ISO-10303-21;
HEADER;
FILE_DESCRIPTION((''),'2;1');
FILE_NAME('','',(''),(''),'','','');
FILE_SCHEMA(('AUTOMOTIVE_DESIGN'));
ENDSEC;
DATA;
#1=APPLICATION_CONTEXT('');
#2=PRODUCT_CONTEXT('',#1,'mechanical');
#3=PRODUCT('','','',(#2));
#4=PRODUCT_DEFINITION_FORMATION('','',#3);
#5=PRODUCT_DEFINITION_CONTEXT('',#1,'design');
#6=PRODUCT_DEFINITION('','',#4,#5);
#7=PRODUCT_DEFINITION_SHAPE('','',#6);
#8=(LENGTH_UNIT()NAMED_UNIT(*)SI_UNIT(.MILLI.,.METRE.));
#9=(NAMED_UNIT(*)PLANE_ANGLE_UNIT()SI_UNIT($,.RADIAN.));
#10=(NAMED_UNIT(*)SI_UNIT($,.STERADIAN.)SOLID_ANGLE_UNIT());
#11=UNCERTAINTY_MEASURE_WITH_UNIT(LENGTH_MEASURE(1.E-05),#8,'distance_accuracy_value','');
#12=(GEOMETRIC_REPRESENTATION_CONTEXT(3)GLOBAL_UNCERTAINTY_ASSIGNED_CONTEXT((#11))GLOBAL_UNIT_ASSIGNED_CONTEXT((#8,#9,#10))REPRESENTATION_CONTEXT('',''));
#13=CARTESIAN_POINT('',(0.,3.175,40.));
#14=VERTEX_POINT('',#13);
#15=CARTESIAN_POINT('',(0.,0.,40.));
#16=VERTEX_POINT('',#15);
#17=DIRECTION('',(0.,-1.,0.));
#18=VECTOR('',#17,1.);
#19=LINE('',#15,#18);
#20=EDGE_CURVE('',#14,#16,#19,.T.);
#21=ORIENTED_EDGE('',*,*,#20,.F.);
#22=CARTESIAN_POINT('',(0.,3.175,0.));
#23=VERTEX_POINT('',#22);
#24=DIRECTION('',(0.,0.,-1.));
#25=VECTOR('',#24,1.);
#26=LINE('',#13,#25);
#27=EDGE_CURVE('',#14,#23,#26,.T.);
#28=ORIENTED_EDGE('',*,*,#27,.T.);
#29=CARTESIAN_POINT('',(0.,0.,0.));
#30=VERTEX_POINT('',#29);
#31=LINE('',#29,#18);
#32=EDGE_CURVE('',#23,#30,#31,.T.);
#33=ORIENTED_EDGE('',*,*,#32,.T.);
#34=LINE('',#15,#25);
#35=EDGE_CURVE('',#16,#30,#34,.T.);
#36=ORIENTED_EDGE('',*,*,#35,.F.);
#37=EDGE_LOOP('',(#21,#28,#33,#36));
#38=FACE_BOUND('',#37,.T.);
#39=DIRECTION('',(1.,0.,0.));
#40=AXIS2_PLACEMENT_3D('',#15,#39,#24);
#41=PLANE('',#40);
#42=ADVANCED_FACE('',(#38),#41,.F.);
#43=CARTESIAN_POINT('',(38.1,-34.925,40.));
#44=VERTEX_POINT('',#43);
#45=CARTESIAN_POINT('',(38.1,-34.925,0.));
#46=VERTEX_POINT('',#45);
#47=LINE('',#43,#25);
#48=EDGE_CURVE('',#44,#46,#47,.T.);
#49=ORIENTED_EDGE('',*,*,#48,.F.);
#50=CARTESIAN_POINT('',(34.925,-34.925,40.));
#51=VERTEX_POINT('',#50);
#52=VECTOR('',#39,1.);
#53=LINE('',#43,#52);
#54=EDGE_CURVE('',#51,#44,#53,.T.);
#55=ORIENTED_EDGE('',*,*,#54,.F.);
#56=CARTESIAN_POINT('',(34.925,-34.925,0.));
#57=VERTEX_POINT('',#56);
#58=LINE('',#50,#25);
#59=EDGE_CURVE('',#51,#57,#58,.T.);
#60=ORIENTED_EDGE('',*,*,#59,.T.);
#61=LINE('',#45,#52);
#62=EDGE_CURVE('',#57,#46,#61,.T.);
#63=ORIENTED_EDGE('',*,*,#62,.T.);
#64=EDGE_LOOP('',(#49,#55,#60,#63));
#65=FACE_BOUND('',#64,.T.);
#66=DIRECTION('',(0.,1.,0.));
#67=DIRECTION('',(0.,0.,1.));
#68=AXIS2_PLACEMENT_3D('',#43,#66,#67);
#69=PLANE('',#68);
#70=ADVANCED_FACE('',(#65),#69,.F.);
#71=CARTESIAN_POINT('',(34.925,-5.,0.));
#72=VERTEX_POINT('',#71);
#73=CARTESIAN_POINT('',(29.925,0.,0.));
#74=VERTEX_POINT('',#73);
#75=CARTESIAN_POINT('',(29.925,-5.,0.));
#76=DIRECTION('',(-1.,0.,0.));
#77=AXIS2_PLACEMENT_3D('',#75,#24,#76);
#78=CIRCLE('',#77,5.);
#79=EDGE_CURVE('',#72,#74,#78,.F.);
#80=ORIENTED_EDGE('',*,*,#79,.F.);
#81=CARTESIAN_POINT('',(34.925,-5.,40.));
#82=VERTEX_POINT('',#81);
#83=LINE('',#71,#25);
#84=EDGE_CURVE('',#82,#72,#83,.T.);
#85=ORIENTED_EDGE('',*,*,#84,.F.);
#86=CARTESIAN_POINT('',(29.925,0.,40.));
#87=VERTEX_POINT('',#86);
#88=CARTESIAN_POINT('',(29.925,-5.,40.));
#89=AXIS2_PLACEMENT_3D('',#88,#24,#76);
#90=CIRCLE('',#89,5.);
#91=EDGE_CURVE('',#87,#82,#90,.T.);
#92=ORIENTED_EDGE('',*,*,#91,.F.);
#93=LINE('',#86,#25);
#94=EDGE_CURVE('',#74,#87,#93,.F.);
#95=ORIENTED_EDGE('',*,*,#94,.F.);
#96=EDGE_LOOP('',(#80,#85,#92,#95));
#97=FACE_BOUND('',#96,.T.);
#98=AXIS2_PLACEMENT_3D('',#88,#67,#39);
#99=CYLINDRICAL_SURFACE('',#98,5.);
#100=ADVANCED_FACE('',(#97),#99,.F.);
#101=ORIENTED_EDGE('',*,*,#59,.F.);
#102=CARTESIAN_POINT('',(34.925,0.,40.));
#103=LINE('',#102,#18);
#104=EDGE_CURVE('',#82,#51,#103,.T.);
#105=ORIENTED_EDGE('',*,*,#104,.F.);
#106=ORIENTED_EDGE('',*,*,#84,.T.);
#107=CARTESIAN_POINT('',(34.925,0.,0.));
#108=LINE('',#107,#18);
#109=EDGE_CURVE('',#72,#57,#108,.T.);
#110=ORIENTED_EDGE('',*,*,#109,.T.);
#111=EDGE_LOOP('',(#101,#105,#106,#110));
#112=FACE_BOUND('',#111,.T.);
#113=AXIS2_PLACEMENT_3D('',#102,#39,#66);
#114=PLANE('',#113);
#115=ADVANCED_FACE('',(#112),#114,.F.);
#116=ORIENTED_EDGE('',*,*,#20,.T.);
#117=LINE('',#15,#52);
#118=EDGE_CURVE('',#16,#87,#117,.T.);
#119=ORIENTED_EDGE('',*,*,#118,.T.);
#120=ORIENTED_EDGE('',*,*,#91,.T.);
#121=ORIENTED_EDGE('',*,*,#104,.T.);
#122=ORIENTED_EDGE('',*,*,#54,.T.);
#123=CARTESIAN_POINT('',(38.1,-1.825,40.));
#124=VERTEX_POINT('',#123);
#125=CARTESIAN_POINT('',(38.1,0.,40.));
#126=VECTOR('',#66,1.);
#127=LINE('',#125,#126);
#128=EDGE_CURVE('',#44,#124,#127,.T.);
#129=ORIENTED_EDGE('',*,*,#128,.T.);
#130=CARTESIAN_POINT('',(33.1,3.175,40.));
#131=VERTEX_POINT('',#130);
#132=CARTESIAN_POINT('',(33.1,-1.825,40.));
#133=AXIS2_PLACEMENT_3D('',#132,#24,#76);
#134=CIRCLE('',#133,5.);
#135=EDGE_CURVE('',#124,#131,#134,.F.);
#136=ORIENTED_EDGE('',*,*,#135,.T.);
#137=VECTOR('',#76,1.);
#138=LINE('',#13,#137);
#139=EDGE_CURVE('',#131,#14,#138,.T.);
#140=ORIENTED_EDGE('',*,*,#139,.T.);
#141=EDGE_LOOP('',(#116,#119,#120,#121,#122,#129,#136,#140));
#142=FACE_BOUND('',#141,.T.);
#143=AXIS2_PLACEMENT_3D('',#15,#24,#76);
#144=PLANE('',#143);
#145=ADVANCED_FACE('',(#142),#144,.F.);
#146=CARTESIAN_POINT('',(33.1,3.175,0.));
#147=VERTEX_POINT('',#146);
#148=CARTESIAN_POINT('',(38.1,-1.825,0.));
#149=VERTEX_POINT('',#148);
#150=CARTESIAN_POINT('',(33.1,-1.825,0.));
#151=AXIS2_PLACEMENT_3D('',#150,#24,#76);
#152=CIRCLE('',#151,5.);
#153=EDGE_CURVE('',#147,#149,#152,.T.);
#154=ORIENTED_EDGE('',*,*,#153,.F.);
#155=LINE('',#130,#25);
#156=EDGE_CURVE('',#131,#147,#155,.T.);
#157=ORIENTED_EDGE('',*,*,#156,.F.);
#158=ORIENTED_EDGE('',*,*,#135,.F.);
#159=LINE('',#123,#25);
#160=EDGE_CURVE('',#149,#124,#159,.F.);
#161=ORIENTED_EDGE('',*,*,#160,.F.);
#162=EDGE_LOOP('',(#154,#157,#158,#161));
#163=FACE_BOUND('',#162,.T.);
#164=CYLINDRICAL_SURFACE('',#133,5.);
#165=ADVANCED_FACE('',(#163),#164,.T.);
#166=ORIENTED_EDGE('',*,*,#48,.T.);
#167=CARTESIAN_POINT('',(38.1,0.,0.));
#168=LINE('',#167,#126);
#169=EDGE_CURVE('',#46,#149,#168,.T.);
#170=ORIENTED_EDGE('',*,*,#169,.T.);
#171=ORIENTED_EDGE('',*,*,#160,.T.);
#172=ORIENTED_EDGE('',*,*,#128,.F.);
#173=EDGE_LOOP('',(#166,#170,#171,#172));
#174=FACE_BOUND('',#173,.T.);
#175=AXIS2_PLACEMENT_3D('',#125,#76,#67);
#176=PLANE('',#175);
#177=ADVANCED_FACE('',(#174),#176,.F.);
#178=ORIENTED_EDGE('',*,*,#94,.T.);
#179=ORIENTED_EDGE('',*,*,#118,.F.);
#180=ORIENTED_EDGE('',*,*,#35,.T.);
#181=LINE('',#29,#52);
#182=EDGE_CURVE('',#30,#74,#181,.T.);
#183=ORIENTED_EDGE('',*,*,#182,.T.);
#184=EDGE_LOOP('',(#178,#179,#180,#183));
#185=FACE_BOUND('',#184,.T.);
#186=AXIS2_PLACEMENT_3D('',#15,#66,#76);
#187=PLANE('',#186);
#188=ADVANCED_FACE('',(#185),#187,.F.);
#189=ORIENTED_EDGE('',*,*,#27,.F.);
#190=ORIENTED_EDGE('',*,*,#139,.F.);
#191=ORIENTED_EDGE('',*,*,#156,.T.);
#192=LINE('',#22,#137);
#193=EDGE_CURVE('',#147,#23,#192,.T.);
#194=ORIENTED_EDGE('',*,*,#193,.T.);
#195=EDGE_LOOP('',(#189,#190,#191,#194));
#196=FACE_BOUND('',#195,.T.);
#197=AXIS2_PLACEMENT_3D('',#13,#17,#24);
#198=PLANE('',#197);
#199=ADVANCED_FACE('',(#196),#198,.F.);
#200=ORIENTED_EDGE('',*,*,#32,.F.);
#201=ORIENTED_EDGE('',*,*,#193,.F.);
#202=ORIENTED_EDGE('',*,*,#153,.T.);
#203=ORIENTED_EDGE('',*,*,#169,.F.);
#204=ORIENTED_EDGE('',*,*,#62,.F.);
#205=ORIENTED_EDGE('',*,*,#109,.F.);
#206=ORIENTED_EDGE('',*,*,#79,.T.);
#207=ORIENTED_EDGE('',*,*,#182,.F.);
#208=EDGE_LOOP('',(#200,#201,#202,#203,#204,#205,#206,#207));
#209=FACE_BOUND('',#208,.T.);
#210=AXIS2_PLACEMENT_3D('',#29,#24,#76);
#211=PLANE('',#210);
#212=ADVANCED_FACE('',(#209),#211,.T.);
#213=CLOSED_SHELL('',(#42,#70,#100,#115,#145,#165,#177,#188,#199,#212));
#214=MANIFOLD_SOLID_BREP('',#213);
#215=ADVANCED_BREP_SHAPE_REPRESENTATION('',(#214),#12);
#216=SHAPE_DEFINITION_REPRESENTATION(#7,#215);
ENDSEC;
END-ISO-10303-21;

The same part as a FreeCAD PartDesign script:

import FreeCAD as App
import Part
import Sketcher
from FreeCAD import Vector
Q = App.Units.Quantity


def edges_at(feature, points):
    """Names of the edges that pass closest to the given points."""
    edges = feature.Shape.Edges
    near = lambda p: min(range(len(edges)), key=lambda i: edges[i].distToShape(Part.Vertex(*p))[0])
    return sorted({f"Edge{near(p) + 1}" for p in points})

doc = App.newDocument("Part")
body = doc.addObject("PartDesign::Body", "Body")

# Sketch on XY plane
sketch1 = body.newObject("Sketcher::SketchObject", "Sketch")
sketch1.AttachmentSupport = (doc.getObject("XY_Plane"), [""])
sketch1.MapMode = "FlatFace"
sketch1.addGeometry([
    Part.LineSegment(Vector(0, 0, 0), Vector(34.9, 0, 0)),  # 0
    Part.LineSegment(Vector(34.9, 0, 0), Vector(34.9, -34.9, 0)),  # 1
    Part.LineSegment(Vector(34.9, -34.9, 0), Vector(38.1, -34.9, 0)),  # 2
    Part.LineSegment(Vector(38.1, -34.9, 0), Vector(38.1, 3.2, 0)),  # 3
    Part.LineSegment(Vector(38.1, 3.2, 0), Vector(0, 3.2, 0)),  # 4
    Part.LineSegment(Vector(0, 3.2, 0), Vector(0, 0, 0)),  # 5
], False)
sketch1.addConstraint([
    Sketcher.Constraint("Coincident", 0, 2, 1, 1),
    Sketcher.Constraint("Coincident", 1, 2, 2, 1),
    Sketcher.Constraint("Coincident", 2, 2, 3, 1),
    Sketcher.Constraint("Coincident", 3, 2, 4, 1),
    Sketcher.Constraint("Coincident", 4, 2, 5, 1),
    Sketcher.Constraint("Coincident", 5, 2, 0, 1),
    Sketcher.Constraint("Horizontal", 0),
    Sketcher.Constraint("Vertical", 1),
    Sketcher.Constraint("Horizontal", 2),
    Sketcher.Constraint("Vertical", 3),
    Sketcher.Constraint("Horizontal", 4),
    Sketcher.Constraint("Vertical", 5),
    Sketcher.Constraint("Coincident", 5, 2, -1, 1),
    Sketcher.Constraint("Equal", 0, 1),
    Sketcher.Constraint("Equal", 4, 3),
    Sketcher.Constraint("DistanceX", 4, 2, 4, 1, Q("1.5 in")),
    Sketcher.Constraint("DistanceX", 0, 1, 0, 2, Q("1.375 in")),
])
pad1 = body.newObject("PartDesign::Pad", "Pad")
pad1.Profile = sketch1
pad1.Length = 40
doc.recompute()

fillet = body.newObject("PartDesign::Fillet", "Fillet")
fillet.Base = (pad1, edges_at(pad1, [(34.925, 0, 20)]))
fillet.Radius = 5
doc.recompute()

fillet2 = body.newObject("PartDesign::Fillet", "Fillet001")
fillet2.Base = (fillet, edges_at(fillet, [(38.1, 3.175, 20)]))
fillet2.Radius = 5

doc.recompute()
